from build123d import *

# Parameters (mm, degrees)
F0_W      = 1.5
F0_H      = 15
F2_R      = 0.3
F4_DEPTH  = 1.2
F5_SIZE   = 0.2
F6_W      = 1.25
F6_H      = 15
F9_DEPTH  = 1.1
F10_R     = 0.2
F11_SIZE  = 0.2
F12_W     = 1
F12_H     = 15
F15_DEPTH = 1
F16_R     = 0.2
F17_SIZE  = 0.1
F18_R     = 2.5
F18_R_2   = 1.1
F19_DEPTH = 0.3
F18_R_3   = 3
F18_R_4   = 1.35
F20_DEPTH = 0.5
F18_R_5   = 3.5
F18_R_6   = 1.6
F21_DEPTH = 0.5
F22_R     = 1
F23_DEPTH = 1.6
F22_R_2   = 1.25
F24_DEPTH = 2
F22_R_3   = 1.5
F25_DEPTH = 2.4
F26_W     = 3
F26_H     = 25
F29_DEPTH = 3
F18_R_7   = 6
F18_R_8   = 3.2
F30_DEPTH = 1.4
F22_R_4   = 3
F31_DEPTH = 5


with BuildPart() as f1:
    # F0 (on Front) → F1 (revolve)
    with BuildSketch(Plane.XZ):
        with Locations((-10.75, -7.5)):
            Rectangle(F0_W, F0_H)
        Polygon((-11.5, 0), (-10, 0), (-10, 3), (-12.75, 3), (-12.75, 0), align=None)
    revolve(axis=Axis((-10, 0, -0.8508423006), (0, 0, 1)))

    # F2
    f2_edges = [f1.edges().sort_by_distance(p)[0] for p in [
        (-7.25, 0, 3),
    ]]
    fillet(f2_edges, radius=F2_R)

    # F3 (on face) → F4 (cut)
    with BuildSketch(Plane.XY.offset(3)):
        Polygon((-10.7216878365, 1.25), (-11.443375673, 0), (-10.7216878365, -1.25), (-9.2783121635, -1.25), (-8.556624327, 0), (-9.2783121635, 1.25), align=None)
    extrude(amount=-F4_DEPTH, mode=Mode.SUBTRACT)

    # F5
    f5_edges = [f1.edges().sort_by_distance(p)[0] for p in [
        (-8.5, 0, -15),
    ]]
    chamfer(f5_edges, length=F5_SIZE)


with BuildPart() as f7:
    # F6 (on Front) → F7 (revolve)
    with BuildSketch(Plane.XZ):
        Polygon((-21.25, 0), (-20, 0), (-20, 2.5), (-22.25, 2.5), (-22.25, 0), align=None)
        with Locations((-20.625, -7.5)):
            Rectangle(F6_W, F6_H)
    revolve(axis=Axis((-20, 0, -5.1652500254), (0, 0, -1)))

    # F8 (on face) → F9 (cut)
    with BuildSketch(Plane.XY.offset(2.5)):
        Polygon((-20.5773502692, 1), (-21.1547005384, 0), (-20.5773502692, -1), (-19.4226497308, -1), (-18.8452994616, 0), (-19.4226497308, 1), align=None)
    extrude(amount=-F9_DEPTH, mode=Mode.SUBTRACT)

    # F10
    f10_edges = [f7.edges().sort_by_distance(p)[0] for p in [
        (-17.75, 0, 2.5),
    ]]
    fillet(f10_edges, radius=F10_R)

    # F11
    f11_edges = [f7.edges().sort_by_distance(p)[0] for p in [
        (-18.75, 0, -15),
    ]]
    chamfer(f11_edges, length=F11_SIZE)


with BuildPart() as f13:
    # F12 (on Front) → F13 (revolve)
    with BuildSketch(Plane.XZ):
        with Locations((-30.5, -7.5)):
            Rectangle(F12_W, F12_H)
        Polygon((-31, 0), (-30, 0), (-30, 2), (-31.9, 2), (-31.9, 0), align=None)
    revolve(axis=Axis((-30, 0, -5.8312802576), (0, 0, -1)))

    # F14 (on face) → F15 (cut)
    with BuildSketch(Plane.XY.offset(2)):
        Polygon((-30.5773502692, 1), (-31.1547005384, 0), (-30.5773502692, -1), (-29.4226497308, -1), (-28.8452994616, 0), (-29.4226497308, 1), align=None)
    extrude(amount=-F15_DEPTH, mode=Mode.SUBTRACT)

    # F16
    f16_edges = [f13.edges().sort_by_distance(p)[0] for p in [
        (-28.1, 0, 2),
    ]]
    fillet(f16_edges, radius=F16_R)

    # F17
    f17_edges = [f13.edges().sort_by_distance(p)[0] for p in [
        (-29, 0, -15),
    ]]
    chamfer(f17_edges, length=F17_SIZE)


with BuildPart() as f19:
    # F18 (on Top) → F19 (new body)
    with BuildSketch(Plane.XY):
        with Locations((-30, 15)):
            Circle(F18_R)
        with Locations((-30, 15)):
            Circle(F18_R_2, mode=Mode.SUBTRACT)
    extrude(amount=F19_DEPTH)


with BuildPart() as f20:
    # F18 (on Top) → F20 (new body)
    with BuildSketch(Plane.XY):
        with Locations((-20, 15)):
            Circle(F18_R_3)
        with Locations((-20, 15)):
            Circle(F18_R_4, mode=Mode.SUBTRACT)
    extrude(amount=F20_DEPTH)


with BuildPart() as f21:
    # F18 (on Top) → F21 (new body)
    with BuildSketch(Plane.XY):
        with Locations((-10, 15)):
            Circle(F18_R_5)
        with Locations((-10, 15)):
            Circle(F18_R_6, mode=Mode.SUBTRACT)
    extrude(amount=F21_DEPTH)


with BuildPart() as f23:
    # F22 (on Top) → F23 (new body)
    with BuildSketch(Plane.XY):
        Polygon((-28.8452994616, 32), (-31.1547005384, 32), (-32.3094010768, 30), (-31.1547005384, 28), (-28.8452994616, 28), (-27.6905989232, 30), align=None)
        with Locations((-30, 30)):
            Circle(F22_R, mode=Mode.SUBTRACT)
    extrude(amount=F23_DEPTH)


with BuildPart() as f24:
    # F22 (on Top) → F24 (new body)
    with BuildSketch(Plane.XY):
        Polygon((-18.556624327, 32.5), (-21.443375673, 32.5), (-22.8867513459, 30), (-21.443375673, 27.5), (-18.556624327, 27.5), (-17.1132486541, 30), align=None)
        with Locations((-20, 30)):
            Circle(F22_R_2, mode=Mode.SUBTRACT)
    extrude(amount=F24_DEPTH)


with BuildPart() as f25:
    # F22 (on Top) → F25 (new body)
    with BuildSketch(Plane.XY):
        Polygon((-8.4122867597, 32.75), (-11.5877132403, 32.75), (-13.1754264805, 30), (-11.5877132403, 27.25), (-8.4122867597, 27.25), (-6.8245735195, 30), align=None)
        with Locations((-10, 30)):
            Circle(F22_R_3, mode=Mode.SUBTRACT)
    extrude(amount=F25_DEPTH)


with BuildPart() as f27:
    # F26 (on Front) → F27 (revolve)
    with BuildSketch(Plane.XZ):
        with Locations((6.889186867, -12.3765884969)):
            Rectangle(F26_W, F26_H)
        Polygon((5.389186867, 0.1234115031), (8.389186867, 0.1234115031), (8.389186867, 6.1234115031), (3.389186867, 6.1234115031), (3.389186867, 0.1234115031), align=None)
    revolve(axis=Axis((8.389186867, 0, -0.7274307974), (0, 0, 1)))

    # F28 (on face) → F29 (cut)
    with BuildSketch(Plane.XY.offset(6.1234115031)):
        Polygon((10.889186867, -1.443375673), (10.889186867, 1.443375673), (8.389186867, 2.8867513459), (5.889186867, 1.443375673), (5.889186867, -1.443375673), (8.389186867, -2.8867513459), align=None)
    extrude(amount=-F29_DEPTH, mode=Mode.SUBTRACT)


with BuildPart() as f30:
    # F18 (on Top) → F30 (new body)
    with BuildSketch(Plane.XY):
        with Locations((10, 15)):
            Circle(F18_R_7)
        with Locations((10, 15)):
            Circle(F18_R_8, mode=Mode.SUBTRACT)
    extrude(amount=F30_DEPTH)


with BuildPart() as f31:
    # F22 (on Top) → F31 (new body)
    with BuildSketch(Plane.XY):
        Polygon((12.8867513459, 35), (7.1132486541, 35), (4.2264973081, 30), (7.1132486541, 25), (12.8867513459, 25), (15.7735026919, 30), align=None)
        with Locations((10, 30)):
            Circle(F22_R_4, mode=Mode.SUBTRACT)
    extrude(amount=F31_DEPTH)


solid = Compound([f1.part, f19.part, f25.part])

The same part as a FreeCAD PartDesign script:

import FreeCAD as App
import Part
import Sketcher
Q = App.Units.Quantity


def edges_at(feature, points):
    """Names of the edges that pass closest to the given points."""
    edges = feature.Shape.Edges
    near = lambda p: min(range(len(edges)), key=lambda i: edges[i].distToShape(Part.Vertex(*p))[0])
    return sorted({f"Edge{near(p) + 1}" for p in points})

doc = App.newDocument("Part")
body = doc.addObject("PartDesign::Body", "Body")

# Sketch on XZ plane
sketch1 = doc.addObject("Sketcher::SketchObject", "Sketch")
body.addObject(sketch1)
sketch1.AttachmentSupport = (doc.XZ_Plane, [""])
sketch1.MapMode = "FlatFace"
sketch1.addGeometry([
    Part.LineSegment(App.Vector(-11.5, 0, 0), App.Vector(-11.5, -15, 0)),  # 0
    Part.LineSegment(App.Vector(-11.5, -15, 0), App.Vector(-10, -15, 0)),  # 1
    Part.LineSegment(App.Vector(-10, -15, 0), App.Vector(-10, 3, 0)),  # 2
    Part.LineSegment(App.Vector(-10, 3, 0), App.Vector(-12.8, 3, 0)),  # 3
    Part.LineSegment(App.Vector(-12.8, 3, 0), App.Vector(-12.8, 0, 0)),  # 4
    Part.LineSegment(App.Vector(-12.8, 0, 0), App.Vector(-11.5, 0, 0)),  # 5
], False)
sketch1.addGeometry(Part.LineSegment(App.Vector(-10, -15, 0), App.Vector(-10, 3, 0)), True)  # axis
sketch1.addConstraint([
    Sketcher.Constraint("Coincident", 0, 2, 1, 1),
    Sketcher.Constraint("Coincident", 1, 2, 2, 1),
    Sketcher.Constraint("Coincident", 2, 2, 3, 1),
    Sketcher.Constraint("Coincident", 3, 2, 4, 1),
    Sketcher.Constraint("Coincident", 4, 2, 5, 1),
    Sketcher.Constraint("Coincident", 5, 2, 0, 1),
    Sketcher.Constraint("Vertical", 0),
    Sketcher.Constraint("Horizontal", 1),
    Sketcher.Constraint("Vertical", 2),
    Sketcher.Constraint("Horizontal", 3),
    Sketcher.Constraint("Vertical", 4),
    Sketcher.Constraint("Horizontal", 5),
    Sketcher.Constraint("Vertical", 6),
    Sketcher.Constraint("Coincident", 6, 1, 1, 2),
    Sketcher.Constraint("PointOnObject", 4, 2, -1),
    Sketcher.Constraint("Horizontal", 3, 2, 6, 2),
    Sketcher.Constraint("DistanceY", 0, 2, 0, 1, 15.0),
    Sketcher.Constraint("DistanceY", 2, 1, 2, 2, 18.0),
    Sketcher.Constraint("DistanceX", 1, 1, 1, 2, 1.5),
    Sketcher.Constraint("DistanceX", 1, 2, -1, 1, 10.0),
    Sketcher.Constraint("DistanceX", 3, 2, 3, 1, 2.75),
])
revolution = doc.addObject("PartDesign::Revolution", "Revolution")
body.addObject(revolution)
revolution.Profile = sketch1
revolution.ReferenceAxis = (sketch1, ["Axis0"])
revolution.Angle = 360
doc.recompute()

fillet = doc.addObject("PartDesign::Fillet", "Fillet")
body.addObject(fillet)
fillet.Base = (revolution, edges_at(revolution, [(-7.25, 0, 3)]))
fillet.Radius = 0.3

# Sketch on XY plane
sketch2 = doc.addObject("Sketcher::SketchObject", "Sketch001")
body.addObject(sketch2)
sketch2.AttachmentSupport = (doc.XY_Plane, [""])
sketch2.MapMode = "FlatFace"
sketch2.AttachmentOffset = App.Placement(App.Vector(0, 0, 3), App.Rotation())
sketch2.addGeometry([
    Part.LineSegment(App.Vector(-10.7, 1.2, 0), App.Vector(-11.4, 0, 0)),  # 0
    Part.LineSegment(App.Vector(-11.4, 0, 0), App.Vector(-10.7, -1.2, 0)),  # 1
    Part.LineSegment(App.Vector(-10.7, -1.2, 0), App.Vector(-9.3, -1.2, 0)),  # 2
    Part.LineSegment(App.Vector(-9.3, -1.2, 0), App.Vector(-8.6, 0, 0)),  # 3
    Part.LineSegment(App.Vector(-8.6, 0, 0), App.Vector(-9.3, 1.2, 0)),  # 4
    Part.LineSegment(App.Vector(-9.3, 1.2, 0), App.Vector(-10.7, 1.2, 0)),  # 5
], False)
sketch2.addConstraint([
    Sketcher.Constraint("Coincident", 0, 2, 1, 1),
    Sketcher.Constraint("Coincident", 1, 2, 2, 1),
    Sketcher.Constraint("Coincident", 2, 2, 3, 1),
    Sketcher.Constraint("Coincident", 3, 2, 4, 1),
    Sketcher.Constraint("Coincident", 4, 2, 5, 1),
    Sketcher.Constraint("Coincident", 5, 2, 0, 1),
    Sketcher.Constraint("Horizontal", 2),
    Sketcher.Constraint("Horizontal", 5),
    Sketcher.Constraint("Symmetric", 2, 2, 4, 2, -1),
    Sketcher.Constraint("PointOnObject", 0, 2, -1),
    Sketcher.Constraint("PointOnObject", 3, 2, -1),
    Sketcher.Constraint("Parallel", 0, 3),
    Sketcher.Constraint("Parallel", 1, 4),
    Sketcher.Constraint("Angle", 0, Q("-120 deg")),
    Sketcher.Constraint("DistanceY", 2, 2, 4, 2, 2.5),
    Sketcher.Constraint("DistanceX", 2, 1, 2, 2, 1.443376),
    Sketcher.Constraint("DistanceX", 0, 2, -1, 1, 11.443376),
])
pocket1 = doc.addObject("PartDesign::Pocket", "Pocket")
body.addObject(pocket1)
pocket1.Profile = sketch2
pocket1.Length = 1.2
doc.recompute()

chamfer = doc.addObject("PartDesign::Chamfer", "Chamfer")
body.addObject(chamfer)
chamfer.Base = (pocket1, edges_at(pocket1, [(-8.5, 0, -15)]))
chamfer.Size = 0.2
body2 = doc.addObject("PartDesign::Body", "Body001")

# Sketch on XZ plane
sketch3 = doc.addObject("Sketcher::SketchObject", "Sketch002")
body2.addObject(sketch3)
sketch3.AttachmentSupport = (doc.getObject("XZ_Plane001"), [""])
sketch3.MapMode = "FlatFace"
sketch3.addGeometry([
    Part.LineSegment(App.Vector(-20, 2.5, 0), App.Vector(-22.2, 2.5, 0)),  # 0
    Part.LineSegment(App.Vector(-22.2, 2.5, 0), App.Vector(-22.2, 0, 0)),  # 1
    Part.LineSegment(App.Vector(-22.2, 0, 0), App.Vector(-21.2, 0, 0)),  # 2
    Part.LineSegment(App.Vector(-21.2, 0, 0), App.Vector(-21.2, -15, 0)),  # 3
    Part.LineSegment(App.Vector(-21.2, -15, 0), App.Vector(-20, -15, 0)),  # 4
    Part.LineSegment(App.Vector(-20, -15, 0), App.Vector(-20, 2.5, 0)),  # 5
], False)
sketch3.addGeometry(Part.LineSegment(App.Vector(-20, 2.5, 0), App.Vector(-20, -15, 0)), True)  # axis
sketch3.addConstraint([
    Sketcher.Constraint("Coincident", 0, 2, 1, 1),
    Sketcher.Constraint("Coincident", 1, 2, 2, 1),
    Sketcher.Constraint("Coincident", 2, 2, 3, 1),
    Sketcher.Constraint("Coincident", 3, 2, 4, 1),
    Sketcher.Constraint("Coincident", 4, 2, 5, 1),
    Sketcher.Constraint("Coincident", 5, 2, 0, 1),
    Sketcher.Constraint("Horizontal", 0),
    Sketcher.Constraint("Vertical", 1),
    Sketcher.Constraint("Horizontal", 2),
    Sketcher.Constraint("Vertical", 3),
    Sketcher.Constraint("Horizontal", 4),
    Sketcher.Constraint("Vertical", 5),
    Sketcher.Constraint("Vertical", 6),
    Sketcher.Constraint("Coincident", 6, 1, 5, 2),
    Sketcher.Constraint("PointOnObject", 1, 2, -1),
    Sketcher.Constraint("Horizontal", 3, 2, 6, 2),
    Sketcher.Constraint("DistanceX", 2, 1, 2, 2, 1.0),
    Sketcher.Constraint("DistanceY", 3, 2, 3, 1, 15.0),
    Sketcher.Constraint("DistanceY", 1, 2, 1, 1, 2.5),
    Sketcher.Constraint("DistanceX", 4, 2, -1, 1, 20.0),
    Sketcher.Constraint("DistanceX", 0, 2, 0, 1, 2.25),
])
revolution2 = doc.addObject("PartDesign::Revolution", "Revolution001")
body2.addObject(revolution2)
revolution2.Profile = sketch3
revolution2.ReferenceAxis = (sketch3, ["Axis0"])
revolution2.Angle = 360

# Sketch on XY plane
sketch4 = doc.addObject("Sketcher::SketchObject", "Sketch003")
body2.addObject(sketch4)
sketch4.AttachmentSupport = (doc.getObject("XY_Plane001"), [""])
sketch4.MapMode = "FlatFace"
sketch4.AttachmentOffset = App.Placement(App.Vector(0, 0, 2.5), App.Rotation())
sketch4.addGeometry([
    Part.LineSegment(App.Vector(-20.6, 1, 0), App.Vector(-21.2, 0, 0)),  # 0
    Part.LineSegment(App.Vector(-21.2, 0, 0), App.Vector(-20.6, -1, 0)),  # 1
    Part.LineSegment(App.Vector(-20.6, -1, 0), App.Vector(-19.4, -1, 0)),  # 2
    Part.LineSegment(App.Vector(-19.4, -1, 0), App.Vector(-18.8, 0, 0)),  # 3
    Part.LineSegment(App.Vector(-18.8, 0, 0), App.Vector(-19.4, 1, 0)),  # 4
    Part.LineSegment(App.Vector(-19.4, 1, 0), App.Vector(-20.6, 1, 0)),  # 5
], False)
sketch4.addConstraint([
    Sketcher.Constraint("Coincident", 0, 2, 1, 1),
    Sketcher.Constraint("Coincident", 1, 2, 2, 1),
    Sketcher.Constraint("Coincident", 2, 2, 3, 1),
    Sketcher.Constraint("Coincident", 3, 2, 4, 1),
    Sketcher.Constraint("Coincident", 4, 2, 5, 1),
    Sketcher.Constraint("Coincident", 5, 2, 0, 1),
    Sketcher.Constraint("Horizontal", 2),
    Sketcher.Constraint("Horizontal", 5),
    Sketcher.Constraint("Symmetric", 2, 2, 4, 2, -1),
    Sketcher.Constraint("PointOnObject", 0, 2, -1),
    Sketcher.Constraint("PointOnObject", 3, 2, -1),
    Sketcher.Constraint("Parallel", 0, 3),
    Sketcher.Constraint("Parallel", 1, 4),
    Sketcher.Constraint("Angle", 0, Q("-120 deg")),
    Sketcher.Constraint("DistanceY", 1, 2, -1, 1, 1.0),
    Sketcher.Constraint("DistanceX", 2, 1, 2, 2, 1.154701),
    Sketcher.Constraint("DistanceX", 0, 2, -1, 1, 21.154701),
])
pocket2 = doc.addObject("PartDesign::Pocket", "Pocket001")
body2.addObject(pocket2)
pocket2.Profile = sketch4
pocket2.Length = 1.1
doc.recompute()

fillet2 = doc.addObject("PartDesign::Fillet", "Fillet001")
body2.addObject(fillet2)
fillet2.Base = (pocket2, edges_at(pocket2, [(-17.75, 0, 2.5)]))
fillet2.Radius = 0.2
doc.recompute()

chamfer2 = doc.addObject("PartDesign::Chamfer", "Chamfer001")
body2.addObject(chamfer2)
chamfer2.Base = (fillet2, edges_at(fillet2, [(-18.75, 0, -15)]))
chamfer2.Size = 0.2
body3 = doc.addObject("PartDesign::Body", "Body002")

# Sketch on XZ plane
sketch5 = doc.addObject("Sketcher::SketchObject", "Sketch004")
body3.addObject(sketch5)
sketch5.AttachmentSupport = (doc.getObject("XZ_Plane002"), [""])
sketch5.MapMode = "FlatFace"
sketch5.addGeometry([
    Part.LineSegment(App.Vector(-31, 0, 0), App.Vector(-31, -15, 0)),  # 0
    Part.LineSegment(App.Vector(-31, -15, 0), App.Vector(-30, -15, 0)),  # 1
    Part.LineSegment(App.Vector(-30, -15, 0), App.Vector(-30, 2, 0)),  # 2
    Part.LineSegment(App.Vector(-30, 2, 0), App.Vector(-31.9, 2, 0)),  # 3
    Part.LineSegment(App.Vector(-31.9, 2, 0), App.Vector(-31.9, 0, 0)),  # 4
    Part.LineSegment(App.Vector(-31.9, 0, 0), App.Vector(-31, 0, 0)),  # 5
], False)
sketch5.addGeometry(Part.LineSegment(App.Vector(-30, 2, 0), App.Vector(-30, -15, 0)), True)  # axis
sketch5.addConstraint([
    Sketcher.Constraint("Coincident", 0, 2, 1, 1),
    Sketcher.Constraint("Coincident", 1, 2, 2, 1),
    Sketcher.Constraint("Coincident", 2, 2, 3, 1),
    Sketcher.Constraint("Coincident", 3, 2, 4, 1),
    Sketcher.Constraint("Coincident", 4, 2, 5, 1),
    Sketcher.Constraint("Coincident", 5, 2, 0, 1),
    Sketcher.Constraint("Vertical", 0),
    Sketcher.Constraint("Horizontal", 1),
    Sketcher.Constraint("Vertical", 2),
    Sketcher.Constraint("Horizontal", 3),
    Sketcher.Constraint("Vertical", 4),
    Sketcher.Constraint("Horizontal", 5),
    Sketcher.Constraint("Vertical", 6),
    Sketcher.Constraint("Coincident", 6, 1, 2, 2),
    Sketcher.Constraint("PointOnObject", 4, 2, -1),
    Sketcher.Constraint("Horizontal", 0, 2, 6, 2),
    Sketcher.Constraint("DistanceX", 1, 1, 1, 2, 1.0),
    Sketcher.Constraint("DistanceY", 0, 2, 0, 1, 15.0),
    Sketcher.Constraint("DistanceY", 2, 1, 2, 2, 17.0),
    Sketcher.Constraint("DistanceX", 3, 2, 3, 1, 1.9),
    Sketcher.Constraint("DistanceX", 0, 2, -1, 1, 31.0),
])
revolution3 = doc.addObject("PartDesign::Revolution", "Revolution002")
body3.addObject(revolution3)
revolution3.Profile = sketch5
revolution3.ReferenceAxis = (sketch5, ["Axis0"])
revolution3.Angle = 360

# Sketch on XY plane
sketch6 = doc.addObject("Sketcher::SketchObject", "Sketch005")
body3.addObject(sketch6)
sketch6.AttachmentSupport = (doc.getObject("XY_Plane002"), [""])
sketch6.MapMode = "FlatFace"
sketch6.AttachmentOffset = App.Placement(App.Vector(0, 0, 2), App.Rotation())
sketch6.addGeometry([
    Part.LineSegment(App.Vector(-30.6, 1, 0), App.Vector(-31.2, 0, 0)),  # 0
    Part.LineSegment(App.Vector(-31.2, 0, 0), App.Vector(-30.6, -1, 0)),  # 1
    Part.LineSegment(App.Vector(-30.6, -1, 0), App.Vector(-29.4, -1, 0)),  # 2
    Part.LineSegment(App.Vector(-29.4, -1, 0), App.Vector(-28.8, 0, 0)),  # 3
    Part.LineSegment(App.Vector(-28.8, 0, 0), App.Vector(-29.4, 1, 0)),  # 4
    Part.LineSegment(App.Vector(-29.4, 1, 0), App.Vector(-30.6, 1, 0)),  # 5
], False)
sketch6.addConstraint([
    Sketcher.Constraint("Coincident", 0, 2, 1, 1),
    Sketcher.Constraint("Coincident", 1, 2, 2, 1),
    Sketcher.Constraint("Coincident", 2, 2, 3, 1),
    Sketcher.Constraint("Coincident", 3, 2, 4, 1),
    Sketcher.Constraint("Coincident", 4, 2, 5, 1),
    Sketcher.Constraint("Coincident", 5, 2, 0, 1),
    Sketcher.Constraint("Horizontal", 2),
    Sketcher.Constraint("Horizontal", 5),
    Sketcher.Constraint("Symmetric", 2, 2, 4, 2, -1),
    Sketcher.Constraint("PointOnObject", 0, 2, -1),
    Sketcher.Constraint("PointOnObject", 3, 2, -1),
    Sketcher.Constraint("Parallel", 0, 3),
    Sketcher.Constraint("Parallel", 1, 4),
    Sketcher.Constraint("Angle", 0, Q("-120 deg")),
    Sketcher.Constraint("DistanceY", 1, 2, -1, 1, 1.0),
    Sketcher.Constraint("DistanceX", 2, 1, 2, 2, 1.154701),
    Sketcher.Constraint("DistanceX", 0, 2, -1, 1, 31.154701),
])
pocket3 = doc.addObject("PartDesign::Pocket", "Pocket002")
body3.addObject(pocket3)
pocket3.Profile = sketch6
pocket3.Length = 1
doc.recompute()

fillet3 = doc.addObject("PartDesign::Fillet", "Fillet002")
body3.addObject(fillet3)
fillet3.Base = (pocket3, edges_at(pocket3, [(-28.1, 0, 2)]))
fillet3.Radius = 0.2
doc.recompute()

chamfer3 = doc.addObject("PartDesign::Chamfer", "Chamfer002")
body3.addObject(chamfer3)
chamfer3.Base = (fillet3, edges_at(fillet3, [(-29, 0, -15)]))
chamfer3.Size = 0.1
body4 = doc.addObject("PartDesign::Body", "Body003")

# Sketch on XY plane
sketch7 = doc.addObject("Sketcher::SketchObject", "Sketch006")
body4.addObject(sketch7)
sketch7.AttachmentSupport = (doc.getObject("XY_Plane003"), [""])
sketch7.MapMode = "FlatFace"
sketch7.addGeometry([
    Part.Circle(App.Vector(-30, 15, 0), App.Vector(0, 0, 1), 2.5),
    Part.Circle(App.Vector(-30, 15, 0), App.Vector(0, 0, 1), 1.1),
], False)
sketch7.addConstraint([
    Sketcher.Constraint("Coincident", 1, 3, 0, 3),
    Sketcher.Constraint("Diameter", 0, 5.0),
    Sketcher.Constraint("Diameter", 1, 2.2),
    Sketcher.Constraint("DistanceX", 0, 3, -1, 1, 30.0),
    Sketcher.Constraint("DistanceY", -1, 1, 0, 3, 15.0),
])
pad1 = doc.addObject("PartDesign::Pad", "Pad")
body4.addObject(pad1)
pad1.Profile = sketch7
pad1.Length = 0.3
body5 = doc.addObject("PartDesign::Body", "Body004")

# Sketch on XY plane
sketch8 = doc.addObject("Sketcher::SketchObject", "Sketch007")
body5.addObject(sketch8)
sketch8.AttachmentSupport = (doc.getObject("XY_Plane004"), [""])
sketch8.MapMode = "FlatFace"
sketch8.addGeometry([
    Part.Circle(App.Vector(-20, 15, 0), App.Vector(0, 0, 1), 3),
    Part.Circle(App.Vector(-20, 15, 0), App.Vector(0, 0, 1), 1.4),
], False)
sketch8.addConstraint([
    Sketcher.Constraint("Coincident", 1, 3, 0, 3),
    Sketcher.Constraint("Diameter", 0, 6.0),
    Sketcher.Constraint("Diameter", 1, 2.7),
    Sketcher.Constraint("DistanceX", 0, 3, -1, 1, 20.0),
    Sketcher.Constraint("DistanceY", -1, 1, 0, 3, 15.0),
])
pad2 = doc.addObject("PartDesign::Pad", "Pad001")
body5.addObject(pad2)
pad2.Profile = sketch8
pad2.Length = 0.5
body6 = doc.addObject("PartDesign::Body", "Body005")

# Sketch on XY plane
sketch9 = doc.addObject("Sketcher::SketchObject", "Sketch008")
body6.addObject(sketch9)
sketch9.AttachmentSupport = (doc.getObject("XY_Plane005"), [""])
sketch9.MapMode = "FlatFace"
sketch9.addGeometry([
    Part.Circle(App.Vector(-10, 15, 0), App.Vector(0, 0, 1), 3.5),
    Part.Circle(App.Vector(-10, 15, 0), App.Vector(0, 0, 1), 1.6),
], False)
sketch9.addConstraint([
    Sketcher.Constraint("Coincident", 1, 3, 0, 3),
    Sketcher.Constraint("Diameter", 0, 7.0),
    Sketcher.Constraint("Diameter", 1, 3.2),
    Sketcher.Constraint("DistanceX", 0, 3, -1, 1, 10.0),
    Sketcher.Constraint("DistanceY", -1, 1, 0, 3, 15.0),
])
pad3 = doc.addObject("PartDesign::Pad", "Pad002")
body6.addObject(pad3)
pad3.Profile = sketch9
pad3.Length = 0.5
body7 = doc.addObject("PartDesign::Body", "Body006")

# Sketch on XY plane
sketch10 = doc.addObject("Sketcher::SketchObject", "Sketch009")
body7.addObject(sketch10)
sketch10.AttachmentSupport = (doc.getObject("XY_Plane006"), [""])
sketch10.MapMode = "FlatFace"
sketch10.addGeometry([
    Part.LineSegment(App.Vector(-28.8, 32, 0), App.Vector(-31.2, 32, 0)),  # 0
    Part.LineSegment(App.Vector(-31.2, 32, 0), App.Vector(-32.3, 30, 0)),  # 1
    Part.LineSegment(App.Vector(-32.3, 30, 0), App.Vector(-31.2, 28, 0)),  # 2
    Part.LineSegment(App.Vector(-31.2, 28, 0), App.Vector(-28.8, 28, 0)),  # 3
    Part.LineSegment(App.Vector(-28.8, 28, 0), App.Vector(-27.7, 30, 0)),  # 4
    Part.LineSegment(App.Vector(-27.7, 30, 0), App.Vector(-28.8, 32, 0)),  # 5
    Part.Circle(App.Vector(-30, 30, 0), App.Vector(0, 0, 1), 1),  # 6
], False)
sketch10.addConstraint([
    Sketcher.Constraint("Coincident", 0, 2, 1, 1),
    Sketcher.Constraint("Coincident", 1, 2, 2, 1),
    Sketcher.Constraint("Coincident", 2, 2, 3, 1),
    Sketcher.Constraint("Coincident", 3, 2, 4, 1),
    Sketcher.Constraint("Coincident", 4, 2, 5, 1),
    Sketcher.Constraint("Coincident", 5, 2, 0, 1),
    Sketcher.Constraint("Horizontal", 0),
    Sketcher.Constraint("Horizontal", 3),
    Sketcher.Constraint("Parallel", 1, 4),
    Sketcher.Constraint("Parallel", 2, 5),
    Sketcher.Constraint("Horizontal", 6, 3, 1, 2),
    Sketcher.Constraint("Horizontal", 1, 2, 4, 2),
    Sketcher.Constraint("Vertical", 0, 2, 2, 2),
    Sketcher.Constraint("Vertical", 3, 2, 5, 2),
    Sketcher.Constraint("Diameter", 6, 2.0),
    Sketcher.Constraint("Angle", 1, Q("-120 deg")),
    Sketcher.Constraint("DistanceX", 6, 3, -1, 1, 30.0),
    Sketcher.Constraint("DistanceY", -1, 1, 6, 3, 30.0),
    Sketcher.Constraint("DistanceY", -1, 1, 0, 2, 32.0),
    Sketcher.Constraint("DistanceX", 0, 2, 0, 1, 2.309401),
    Sketcher.Constraint("DistanceX", 0, 2, -1, 1, 31.154701),
])
pad4 = doc.addObject("PartDesign::Pad", "Pad003")
body7.addObject(pad4)
pad4.Profile = sketch10
pad4.Length = 1.6
body8 = doc.addObject("PartDesign::Body", "Body007")

# Sketch on XY plane
sketch11 = doc.addObject("Sketcher::SketchObject", "Sketch010")
body8.addObject(sketch11)
sketch11.AttachmentSupport = (doc.getObject("XY_Plane007"), [""])
sketch11.MapMode = "FlatFace"
sketch11.addGeometry([
    Part.LineSegment(App.Vector(-18.6, 32.5, 0), App.Vector(-21.4, 32.5, 0)),  # 0
    Part.LineSegment(App.Vector(-21.4, 32.5, 0), App.Vector(-22.9, 30, 0)),  # 1
    Part.LineSegment(App.Vector(-22.9, 30, 0), App.Vector(-21.4, 27.5, 0)),  # 2
    Part.LineSegment(App.Vector(-21.4, 27.5, 0), App.Vector(-18.6, 27.5, 0)),  # 3
    Part.LineSegment(App.Vector(-18.6, 27.5, 0), App.Vector(-17.1, 30, 0)),  # 4
    Part.LineSegment(App.Vector(-17.1, 30, 0), App.Vector(-18.6, 32.5, 0)),  # 5
    Part.Circle(App.Vector(-20, 30, 0), App.Vector(0, 0, 1), 1.2),  # 6
], False)
sketch11.addConstraint([
    Sketcher.Constraint("Coincident", 0, 2, 1, 1),
    Sketcher.Constraint("Coincident", 1, 2, 2, 1),
    Sketcher.Constraint("Coincident", 2, 2, 3, 1),
    Sketcher.Constraint("Coincident", 3, 2, 4, 1),
    Sketcher.Constraint("Coincident", 4, 2, 5, 1),
    Sketcher.Constraint("Coincident", 5, 2, 0, 1),
    Sketcher.Constraint("Horizontal", 0),
    Sketcher.Constraint("Horizontal", 3),
    Sketcher.Constraint("Parallel", 1, 4),
    Sketcher.Constraint("Parallel", 2, 5),
    Sketcher.Constraint("Horizontal", 6, 3, 1, 2),
    Sketcher.Constraint("Horizontal", 1, 2, 4, 2),
    Sketcher.Constraint("Vertical", 0, 2, 2, 2),
    Sketcher.Constraint("Vertical", 3, 2, 5, 2),
    Sketcher.Constraint("Diameter", 6, 2.5),
    Sketcher.Constraint("Angle", 1, Q("-120 deg")),
    Sketcher.Constraint("DistanceX", 6, 3, -1, 1, 20.0),
    Sketcher.Constraint("DistanceY", -1, 1, 6, 3, 30.0),
    Sketcher.Constraint("DistanceY", 2, 2, 0, 2, 5.0),
    Sketcher.Constraint("DistanceX", 0, 2, 0, 1, 2.886751),
    Sketcher.Constraint("DistanceX", 1, 2, -1, 1, 22.886751),
])
pad5 = doc.addObject("PartDesign::Pad", "Pad004")
body8.addObject(pad5)
pad5.Profile = sketch11
pad5.Length = 2
body9 = doc.addObject("PartDesign::Body", "Body008")

# Sketch on XY plane
sketch12 = doc.addObject("Sketcher::SketchObject", "Sketch011")
body9.addObject(sketch12)
sketch12.AttachmentSupport = (doc.getObject("XY_Plane008"), [""])
sketch12.MapMode = "FlatFace"
sketch12.addGeometry([
    Part.LineSegment(App.Vector(-8.4, 32.8, 0), App.Vector(-11.6, 32.8, 0)),  # 0
    Part.LineSegment(App.Vector(-11.6, 32.8, 0), App.Vector(-13.2, 30, 0)),  # 1
    Part.LineSegment(App.Vector(-13.2, 30, 0), App.Vector(-11.6, 27.2, 0)),  # 2
    Part.LineSegment(App.Vector(-11.6, 27.2, 0), App.Vector(-8.4, 27.2, 0)),  # 3
    Part.LineSegment(App.Vector(-8.4, 27.2, 0), App.Vector(-6.8, 30, 0)),  # 4
    Part.LineSegment(App.Vector(-6.8, 30, 0), App.Vector(-8.4, 32.8, 0)),  # 5
    Part.Circle(App.Vector(-10, 30, 0), App.Vector(0, 0, 1), 1.5),  # 6
], False)
sketch12.addConstraint([
    Sketcher.Constraint("Coincident", 0, 2, 1, 1),
    Sketcher.Constraint("Coincident", 1, 2, 2, 1),
    Sketcher.Constraint("Coincident", 2, 2, 3, 1),
    Sketcher.Constraint("Coincident", 3, 2, 4, 1),
    Sketcher.Constraint("Coincident", 4, 2, 5, 1),
    Sketcher.Constraint("Coincident", 5, 2, 0, 1),
    Sketcher.Constraint("Horizontal", 0),
    Sketcher.Constraint("Horizontal", 3),
    Sketcher.Constraint("Parallel", 1, 4),
    Sketcher.Constraint("Parallel", 2, 5),
    Sketcher.Constraint("Horizontal", 6, 3, 1, 2),
    Sketcher.Constraint("Horizontal", 1, 2, 4, 2),
    Sketcher.Constraint("Vertical", 0, 2, 2, 2),
    Sketcher.Constraint("Vertical", 3, 2, 5, 2),
    Sketcher.Constraint("Diameter", 6, 3.0),
    Sketcher.Constraint("Angle", 1, Q("-120 deg")),
    Sketcher.Constraint("DistanceX", 6, 3, -1, 1, 10.0),
    Sketcher.Constraint("DistanceY", -1, 1, 6, 3, 30.0),
    Sketcher.Constraint("DistanceY", 2, 2, 0, 2, 5.5),
    Sketcher.Constraint("DistanceX", 0, 2, 0, 1, 3.175426),
    Sketcher.Constraint("DistanceX", 0, 2, -1, 1, 11.587713),
])
pad6 = doc.addObject("PartDesign::Pad", "Pad005")
body9.addObject(pad6)
pad6.Profile = sketch12
pad6.Length = 2.4
body10 = doc.addObject("PartDesign::Body", "Body009")

# Sketch on XZ plane
sketch13 = doc.addObject("Sketcher::SketchObject", "Sketch012")
body10.addObject(sketch13)
sketch13.AttachmentSupport = (doc.getObject("XZ_Plane009"), [""])
sketch13.MapMode = "FlatFace"
sketch13.addGeometry([
    Part.LineSegment(App.Vector(5.4, 0.1, 0), App.Vector(5.4, -24.9, 0)),  # 0
    Part.LineSegment(App.Vector(5.4, -24.9, 0), App.Vector(8.4, -24.9, 0)),  # 1
    Part.LineSegment(App.Vector(8.4, -24.9, 0), App.Vector(8.4, 6.1, 0)),  # 2
    Part.LineSegment(App.Vector(8.4, 6.1, 0), App.Vector(3.4, 6.1, 0)),  # 3
    Part.LineSegment(App.Vector(3.4, 6.1, 0), App.Vector(3.4, 0.1, 0)),  # 4
    Part.LineSegment(App.Vector(3.4, 0.1, 0), App.Vector(5.4, 0.1, 0)),  # 5
], False)
sketch13.addGeometry(Part.LineSegment(App.Vector(8.4, -24.9, 0), App.Vector(8.4, 6.1, 0)), True)  # axis
sketch13.addConstraint([
    Sketcher.Constraint("Coincident", 0, 2, 1, 1),
    Sketcher.Constraint("Coincident", 1, 2, 2, 1),
    Sketcher.Constraint("Coincident", 2, 2, 3, 1),
    Sketcher.Constraint("Coincident", 3, 2, 4, 1),
    Sketcher.Constraint("Coincident", 4, 2, 5, 1),
    Sketcher.Constraint("Coincident", 5, 2, 0, 1),
    Sketcher.Constraint("Vertical", 0),
    Sketcher.Constraint("Horizontal", 1),
    Sketcher.Constraint("Vertical", 2),
    Sketcher.Constraint("Horizontal", 3),
    Sketcher.Constraint("Vertical", 4),
    Sketcher.Constraint("Horizontal", 5),
    Sketcher.Constraint("Vertical", 6),
    Sketcher.Constraint("Coincident", 6, 1, 1, 2),
    Sketcher.Constraint("Horizontal", 3, 2, 6, 2),
    Sketcher.Constraint("DistanceX", 1, 1, 1, 2, 3.0),
    Sketcher.Constraint("DistanceX", 3, 2, 3, 1, 5.0),
    Sketcher.Constraint("DistanceY", 0, 2, 0, 1, 25.0),
    Sketcher.Constraint("DistanceY", 2, 1, 2, 2, 31.0),
    Sketcher.Constraint("DistanceY", 0, 2, -1, 1, 24.876588),
    Sketcher.Constraint("DistanceX", -1, 1, 0, 2, 5.389187),
])
revolution4 = doc.addObject("PartDesign::Revolution", "Revolution003")
body10.addObject(revolution4)
revolution4.Profile = sketch13
revolution4.ReferenceAxis = (sketch13, ["Axis0"])
revolution4.Angle = 360

# Sketch on XY plane
sketch14 = doc.addObject("Sketcher::SketchObject", "Sketch013")
body10.addObject(sketch14)
sketch14.AttachmentSupport = (doc.getObject("XY_Plane009"), [""])
sketch14.MapMode = "FlatFace"
sketch14.AttachmentOffset = App.Placement(App.Vector(0, 0, 6.123412), App.Rotation())
sketch14.addGeometry([
    Part.LineSegment(App.Vector(10.9, -1.4, 0), App.Vector(10.9, 1.4, 0)),  # 0
    Part.LineSegment(App.Vector(10.9, 1.4, 0), App.Vector(8.4, 2.9, 0)),  # 1
    Part.LineSegment(App.Vector(8.4, 2.9, 0), App.Vector(5.9, 1.4, 0)),  # 2
    Part.LineSegment(App.Vector(5.9, 1.4, 0), App.Vector(5.9, -1.4, 0)),  # 3
    Part.LineSegment(App.Vector(5.9, -1.4, 0), App.Vector(8.4, -2.9, 0)),  # 4
    Part.LineSegment(App.Vector(8.4, -2.9, 0), App.Vector(10.9, -1.4, 0)),  # 5
], False)
sketch14.addConstraint([
    Sketcher.Constraint("Coincident", 0, 2, 1, 1),
    Sketcher.Constraint("Coincident", 1, 2, 2, 1),
    Sketcher.Constraint("Coincident", 2, 2, 3, 1),
    Sketcher.Constraint("Coincident", 3, 2, 4, 1),
    Sketcher.Constraint("Coincident", 4, 2, 5, 1),
    Sketcher.Constraint("Coincident", 5, 2, 0, 1),
    Sketcher.Constraint("Vertical", 0),
    Sketcher.Constraint("Vertical", 3),
    Sketcher.Constraint("Symmetric", 1, 2, 4, 2, -1),
    Sketcher.Constraint("Parallel", 1, 4),
    Sketcher.Constraint("Parallel", 2, 5),
    Sketcher.Constraint("Horizontal", 0, 2, 2, 2),
    Sketcher.Constraint("Horizontal", 3, 2, 5, 2),
    Sketcher.Constraint("Angle", 1, Q("150 deg")),
    Sketcher.Constraint("DistanceX", 2, 2, 0, 2, 5.0),
    Sketcher.Constraint("DistanceY", 0, 1, 0, 2, 2.886751),
    Sketcher.Constraint("DistanceX", -1, 1, 0, 2, 10.889187),
])
pocket4 = doc.addObject("PartDesign::Pocket", "Pocket003")
body10.addObject(pocket4)
pocket4.Profile = sketch14
pocket4.Length = 3
body11 = doc.addObject("PartDesign::Body", "Body010")

# Sketch on XY plane
sketch15 = doc.addObject("Sketcher::SketchObject", "Sketch014")
body11.addObject(sketch15)
sketch15.AttachmentSupport = (doc.getObject("XY_Plane010"), [""])
sketch15.MapMode = "FlatFace"
sketch15.addGeometry([
    Part.Circle(App.Vector(10, 15, 0), App.Vector(0, 0, 1), 6),
    Part.Circle(App.Vector(10, 15, 0), App.Vector(0, 0, 1), 3.2),
], False)
sketch15.addConstraint([
    Sketcher.Constraint("Coincident", 1, 3, 0, 3),
    Sketcher.Constraint("Diameter", 0, 12.0),
    Sketcher.Constraint("Diameter", 1, 6.4),
    Sketcher.Constraint("DistanceX", -1, 1, 0, 3, 10.0),
    Sketcher.Constraint("DistanceY", -1, 1, 0, 3, 15.0),
])
pad7 = doc.addObject("PartDesign::Pad", "Pad006")
body11.addObject(pad7)
pad7.Profile = sketch15
pad7.Length = 1.4
body12 = doc.addObject("PartDesign::Body", "Body011")

# Sketch on XY plane
sketch16 = doc.addObject("Sketcher::SketchObject", "Sketch015")
body12.addObject(sketch16)
sketch16.AttachmentSupport = (doc.getObject("XY_Plane011"), [""])
sketch16.MapMode = "FlatFace"
sketch16.addGeometry([
    Part.LineSegment(App.Vector(12.9, 35, 0), App.Vector(7.1, 35, 0)),  # 0
    Part.LineSegment(App.Vector(7.1, 35, 0), App.Vector(4.2, 30, 0)),  # 1
    Part.LineSegment(App.Vector(4.2, 30, 0), App.Vector(7.1, 25, 0)),  # 2
    Part.LineSegment(App.Vector(7.1, 25, 0), App.Vector(12.9, 25, 0)),  # 3
    Part.LineSegment(App.Vector(12.9, 25, 0), App.Vector(15.8, 30, 0)),  # 4
    Part.LineSegment(App.Vector(15.8, 30, 0), App.Vector(12.9, 35, 0)),  # 5
    Part.Circle(App.Vector(10, 30, 0), App.Vector(0, 0, 1), 3),  # 6
], False)
sketch16.addConstraint([
    Sketcher.Constraint("Coincident", 0, 2, 1, 1),
    Sketcher.Constraint("Coincident", 1, 2, 2, 1),
    Sketcher.Constraint("Coincident", 2, 2, 3, 1),
    Sketcher.Constraint("Coincident", 3, 2, 4, 1),
    Sketcher.Constraint("Coincident", 4, 2, 5, 1),
    Sketcher.Constraint("Coincident", 5, 2, 0, 1),
    Sketcher.Constraint("Horizontal", 0),
    Sketcher.Constraint("Horizontal", 3),
    Sketcher.Constraint("Parallel", 1, 4),
    Sketcher.Constraint("Parallel", 2, 5),
    Sketcher.Constraint("Horizontal", 6, 3, 1, 2),
    Sketcher.Constraint("Horizontal", 1, 2, 4, 2),
    Sketcher.Constraint("Vertical", 0, 2, 2, 2),
    Sketcher.Constraint("Vertical", 3, 2, 5, 2),
    Sketcher.Constraint("Diameter", 6, 6.0),
    Sketcher.Constraint("Angle", 1, Q("-120 deg")),
    Sketcher.Constraint("DistanceX", -1, 1, 6, 3, 10.0),
    Sketcher.Constraint("DistanceY", -1, 1, 6, 3, 30.0),
    Sketcher.Constraint("DistanceY", -1, 1, 0, 2, 35.0),
    Sketcher.Constraint("DistanceX", 0, 2, 0, 1, 5.773503),
    Sketcher.Constraint("DistanceX", -1, 1, 0, 2, 7.113249),
])
pad8 = doc.addObject("PartDesign::Pad", "Pad007")
body12.addObject(pad8)
pad8.Profile = sketch16
pad8.Length = 5
body2.Visibility = False
body3.Visibility = False
body5.Visibility = False
body6.Visibility = False
body7.Visibility = False
body8.Visibility = False
body10.Visibility = False
body11.Visibility = False
body12.Visibility = False

doc.recompute()
